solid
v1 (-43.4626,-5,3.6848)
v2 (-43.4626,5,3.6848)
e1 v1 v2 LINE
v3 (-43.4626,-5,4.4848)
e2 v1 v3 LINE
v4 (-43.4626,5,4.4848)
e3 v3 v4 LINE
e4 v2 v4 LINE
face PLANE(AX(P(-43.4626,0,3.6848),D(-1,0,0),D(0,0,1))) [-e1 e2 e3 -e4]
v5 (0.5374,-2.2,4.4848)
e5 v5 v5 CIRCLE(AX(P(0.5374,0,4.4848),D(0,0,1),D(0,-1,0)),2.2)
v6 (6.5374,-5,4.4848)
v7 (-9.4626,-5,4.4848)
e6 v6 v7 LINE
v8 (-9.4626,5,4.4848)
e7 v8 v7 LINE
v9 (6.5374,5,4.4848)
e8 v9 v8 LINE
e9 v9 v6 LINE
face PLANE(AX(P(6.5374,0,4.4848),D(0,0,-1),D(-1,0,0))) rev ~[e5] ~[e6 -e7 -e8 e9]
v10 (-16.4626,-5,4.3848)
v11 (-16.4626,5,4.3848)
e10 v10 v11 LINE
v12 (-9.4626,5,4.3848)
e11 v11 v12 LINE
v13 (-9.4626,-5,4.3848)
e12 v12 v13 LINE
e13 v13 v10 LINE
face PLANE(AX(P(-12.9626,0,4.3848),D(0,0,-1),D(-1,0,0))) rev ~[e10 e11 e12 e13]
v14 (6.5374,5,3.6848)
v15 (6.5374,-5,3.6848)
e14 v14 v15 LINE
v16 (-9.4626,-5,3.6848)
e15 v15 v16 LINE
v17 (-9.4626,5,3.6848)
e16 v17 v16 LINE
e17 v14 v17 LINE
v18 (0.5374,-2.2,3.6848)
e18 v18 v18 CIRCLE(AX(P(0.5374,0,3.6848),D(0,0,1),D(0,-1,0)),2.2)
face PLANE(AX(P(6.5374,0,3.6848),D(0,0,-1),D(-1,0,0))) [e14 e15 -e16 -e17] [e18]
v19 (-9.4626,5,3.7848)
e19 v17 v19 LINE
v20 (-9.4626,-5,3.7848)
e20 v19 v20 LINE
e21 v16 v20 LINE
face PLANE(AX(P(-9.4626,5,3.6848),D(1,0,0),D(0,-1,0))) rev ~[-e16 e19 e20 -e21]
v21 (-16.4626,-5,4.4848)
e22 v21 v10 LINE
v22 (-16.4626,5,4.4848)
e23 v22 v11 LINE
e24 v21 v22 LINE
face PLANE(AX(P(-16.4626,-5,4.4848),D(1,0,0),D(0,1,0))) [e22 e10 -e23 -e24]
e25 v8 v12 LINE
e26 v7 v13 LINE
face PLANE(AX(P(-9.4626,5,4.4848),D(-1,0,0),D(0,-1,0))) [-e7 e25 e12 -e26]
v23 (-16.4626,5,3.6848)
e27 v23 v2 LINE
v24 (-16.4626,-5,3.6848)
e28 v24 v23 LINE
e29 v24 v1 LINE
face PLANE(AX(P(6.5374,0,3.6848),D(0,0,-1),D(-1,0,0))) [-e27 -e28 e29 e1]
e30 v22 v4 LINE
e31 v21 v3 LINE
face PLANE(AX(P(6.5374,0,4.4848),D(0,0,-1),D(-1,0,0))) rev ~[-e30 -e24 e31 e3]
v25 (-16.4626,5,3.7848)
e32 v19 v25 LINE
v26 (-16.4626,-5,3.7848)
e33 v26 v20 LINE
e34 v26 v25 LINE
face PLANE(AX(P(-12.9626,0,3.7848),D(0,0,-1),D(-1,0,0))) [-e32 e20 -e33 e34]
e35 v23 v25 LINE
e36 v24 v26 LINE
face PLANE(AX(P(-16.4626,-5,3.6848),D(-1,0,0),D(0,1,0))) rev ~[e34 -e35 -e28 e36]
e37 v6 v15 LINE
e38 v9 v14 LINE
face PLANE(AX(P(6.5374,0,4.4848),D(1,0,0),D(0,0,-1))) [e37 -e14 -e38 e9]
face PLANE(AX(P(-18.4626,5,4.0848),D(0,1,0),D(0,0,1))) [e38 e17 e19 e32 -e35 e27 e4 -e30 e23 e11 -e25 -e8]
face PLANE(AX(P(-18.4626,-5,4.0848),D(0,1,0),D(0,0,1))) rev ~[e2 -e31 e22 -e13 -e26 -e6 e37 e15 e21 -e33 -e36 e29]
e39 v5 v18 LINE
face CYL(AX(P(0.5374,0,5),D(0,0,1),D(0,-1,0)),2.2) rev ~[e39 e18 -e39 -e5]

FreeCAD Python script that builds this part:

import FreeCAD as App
import Part
import Sketcher


def add_polygon(sketch, points):
    """Adds a closed chain of lines whose ends are joined by coincident constraints."""
    first, n = sketch.GeometryCount, len(points)
    for a, b in zip(points, points[1:] + points[:1]):
        sketch.addGeometry(Part.LineSegment(App.Vector(*a, 0), App.Vector(*b, 0)), False)
    for i in range(n):
        sketch.addConstraint(Sketcher.Constraint("Coincident", first + i, 2, first + (i + 1) % n, 1))

doc = App.newDocument("Part")
body = doc.addObject("PartDesign::Body", "Body")

sketch1 = doc.addObject("Sketcher::SketchObject", "Sketch")
body.addObject(sketch1)
sketch1.AttachmentSupport = (doc.XZ_Plane, [""])
sketch1.MapMode = "FlatFace"
add_polygon(sketch1, [(-43.5, 3.7), (6.5, 3.7), (6.5, 4.5), (-43.5, 4.5)])
sketch1.addConstraint([
    Sketcher.Constraint("Horizontal", 0),
    Sketcher.Constraint("Vertical", 1),
    Sketcher.Constraint("Horizontal", 2),
    Sketcher.Constraint("Vertical", 3),
    Sketcher.Constraint("DistanceX", 0, 1, 0, 2, 50.0),
    Sketcher.Constraint("DistanceY", 1, 1, 1, 2, 0.8),
    Sketcher.Constraint("DistanceX", -1, 1, 0, 2, 6.5374),
    Sketcher.Constraint("DistanceY", -1, 1, 0, 2, 3.6848),
])
pad1 = doc.addObject("PartDesign::Pad", "Pad")
body.addObject(pad1)
pad1.Profile = sketch1
pad1.Length = 10
pad1.Midplane = True

sketch2 = doc.addObject("Sketcher::SketchObject", "Sketch001")
body.addObject(sketch2)
sketch2.AttachmentSupport = (doc.XY_Plane, [""])
sketch2.MapMode = "FlatFace"
sketch2.AttachmentOffset = App.Placement(App.Vector(0, 0, 5), App.Rotation())
sketch2.addGeometry(Part.Circle(App.Vector(0.5, 0, 0), App.Vector(0, 0, 1), 2.2), False)
sketch2.addConstraint([
    Sketcher.Constraint("PointOnObject", 0, 3, -1),
    Sketcher.Constraint("Diameter", 0, 4.4),
    Sketcher.Constraint("DistanceX", -1, 1, 0, 3, 0.5374),
])
pocket1 = doc.addObject("PartDesign::Pocket", "Pocket")
body.addObject(pocket1)
pocket1.Profile = sketch2
pocket1.Type = "ThroughAll"
pocket1.Midplane = True

sketch3 = doc.addObject("Sketcher::SketchObject", "Sketch002")
body.addObject(sketch3)
sketch3.AttachmentSupport = (doc.XY_Plane, [""])
sketch3.MapMode = "FlatFace"
sketch3.AttachmentOffset = App.Placement(App.Vector(0, 0, 4.4848), App.Rotation())
add_polygon(sketch3, [(-9, -5), (-9, 5), (-16, 5), (-16, -5)])
sketch3.addConstraint([
    Sketcher.Constraint("Vertical", 0),
    Sketcher.Constraint("Horizontal", 1),
    Sketcher.Constraint("Vertical", 2),
    Sketcher.Constraint("Horizontal", 3),
    Sketcher.Constraint("DistanceX", 1, 2, 1, 1, 7.0),
    Sketcher.Constraint("DistanceY", 0, 1, 0, 2, 10.0),
    Sketcher.Constraint("DistanceY", -1, 1, 0, 2, 5.0),
    Sketcher.Constraint("DistanceX", 0, 2, -1, 1, 9.4626),
])
pocket2 = doc.addObject("PartDesign::Pocket", "Pocket001")
body.addObject(pocket2)
pocket2.Profile = sketch3
pocket2.Length = 0.1

sketch4 = doc.addObject("Sketcher::SketchObject", "Sketch003")
body.addObject(sketch4)
sketch4.AttachmentSupport = (doc.XY_Plane, [""])
sketch4.MapMode = "FlatFace"
sketch4.AttachmentOffset = App.Placement(App.Vector(0, 0, 3.6848), App.Rotation())
add_polygon(sketch4, [(-9, -5), (-16, -5), (-16, 5), (-9, 5)])
sketch4.addConstraint([
    Sketcher.Constraint("Horizontal", 0),
    Sketcher.Constraint("Vertical", 1),
    Sketcher.Constraint("Horizontal", 2),
    Sketcher.Constraint("Vertical", 3),
    Sketcher.Constraint("DistanceX", 0, 2, 0, 1, 7.0),
    Sketcher.Constraint("DistanceY", 1, 1, 1, 2, 10.0),
    Sketcher.Constraint("DistanceY", 0, 2, -1, 1, 5.0),
    Sketcher.Constraint("DistanceX", 0, 2, -1, 1, 16.4626),
])
pocket3 = doc.addObject("PartDesign::Pocket", "Pocket002")
body.addObject(pocket3)
pocket3.Profile = sketch4
pocket3.Length = 0.1
pocket3.Reversed = True

doc.recompute()
